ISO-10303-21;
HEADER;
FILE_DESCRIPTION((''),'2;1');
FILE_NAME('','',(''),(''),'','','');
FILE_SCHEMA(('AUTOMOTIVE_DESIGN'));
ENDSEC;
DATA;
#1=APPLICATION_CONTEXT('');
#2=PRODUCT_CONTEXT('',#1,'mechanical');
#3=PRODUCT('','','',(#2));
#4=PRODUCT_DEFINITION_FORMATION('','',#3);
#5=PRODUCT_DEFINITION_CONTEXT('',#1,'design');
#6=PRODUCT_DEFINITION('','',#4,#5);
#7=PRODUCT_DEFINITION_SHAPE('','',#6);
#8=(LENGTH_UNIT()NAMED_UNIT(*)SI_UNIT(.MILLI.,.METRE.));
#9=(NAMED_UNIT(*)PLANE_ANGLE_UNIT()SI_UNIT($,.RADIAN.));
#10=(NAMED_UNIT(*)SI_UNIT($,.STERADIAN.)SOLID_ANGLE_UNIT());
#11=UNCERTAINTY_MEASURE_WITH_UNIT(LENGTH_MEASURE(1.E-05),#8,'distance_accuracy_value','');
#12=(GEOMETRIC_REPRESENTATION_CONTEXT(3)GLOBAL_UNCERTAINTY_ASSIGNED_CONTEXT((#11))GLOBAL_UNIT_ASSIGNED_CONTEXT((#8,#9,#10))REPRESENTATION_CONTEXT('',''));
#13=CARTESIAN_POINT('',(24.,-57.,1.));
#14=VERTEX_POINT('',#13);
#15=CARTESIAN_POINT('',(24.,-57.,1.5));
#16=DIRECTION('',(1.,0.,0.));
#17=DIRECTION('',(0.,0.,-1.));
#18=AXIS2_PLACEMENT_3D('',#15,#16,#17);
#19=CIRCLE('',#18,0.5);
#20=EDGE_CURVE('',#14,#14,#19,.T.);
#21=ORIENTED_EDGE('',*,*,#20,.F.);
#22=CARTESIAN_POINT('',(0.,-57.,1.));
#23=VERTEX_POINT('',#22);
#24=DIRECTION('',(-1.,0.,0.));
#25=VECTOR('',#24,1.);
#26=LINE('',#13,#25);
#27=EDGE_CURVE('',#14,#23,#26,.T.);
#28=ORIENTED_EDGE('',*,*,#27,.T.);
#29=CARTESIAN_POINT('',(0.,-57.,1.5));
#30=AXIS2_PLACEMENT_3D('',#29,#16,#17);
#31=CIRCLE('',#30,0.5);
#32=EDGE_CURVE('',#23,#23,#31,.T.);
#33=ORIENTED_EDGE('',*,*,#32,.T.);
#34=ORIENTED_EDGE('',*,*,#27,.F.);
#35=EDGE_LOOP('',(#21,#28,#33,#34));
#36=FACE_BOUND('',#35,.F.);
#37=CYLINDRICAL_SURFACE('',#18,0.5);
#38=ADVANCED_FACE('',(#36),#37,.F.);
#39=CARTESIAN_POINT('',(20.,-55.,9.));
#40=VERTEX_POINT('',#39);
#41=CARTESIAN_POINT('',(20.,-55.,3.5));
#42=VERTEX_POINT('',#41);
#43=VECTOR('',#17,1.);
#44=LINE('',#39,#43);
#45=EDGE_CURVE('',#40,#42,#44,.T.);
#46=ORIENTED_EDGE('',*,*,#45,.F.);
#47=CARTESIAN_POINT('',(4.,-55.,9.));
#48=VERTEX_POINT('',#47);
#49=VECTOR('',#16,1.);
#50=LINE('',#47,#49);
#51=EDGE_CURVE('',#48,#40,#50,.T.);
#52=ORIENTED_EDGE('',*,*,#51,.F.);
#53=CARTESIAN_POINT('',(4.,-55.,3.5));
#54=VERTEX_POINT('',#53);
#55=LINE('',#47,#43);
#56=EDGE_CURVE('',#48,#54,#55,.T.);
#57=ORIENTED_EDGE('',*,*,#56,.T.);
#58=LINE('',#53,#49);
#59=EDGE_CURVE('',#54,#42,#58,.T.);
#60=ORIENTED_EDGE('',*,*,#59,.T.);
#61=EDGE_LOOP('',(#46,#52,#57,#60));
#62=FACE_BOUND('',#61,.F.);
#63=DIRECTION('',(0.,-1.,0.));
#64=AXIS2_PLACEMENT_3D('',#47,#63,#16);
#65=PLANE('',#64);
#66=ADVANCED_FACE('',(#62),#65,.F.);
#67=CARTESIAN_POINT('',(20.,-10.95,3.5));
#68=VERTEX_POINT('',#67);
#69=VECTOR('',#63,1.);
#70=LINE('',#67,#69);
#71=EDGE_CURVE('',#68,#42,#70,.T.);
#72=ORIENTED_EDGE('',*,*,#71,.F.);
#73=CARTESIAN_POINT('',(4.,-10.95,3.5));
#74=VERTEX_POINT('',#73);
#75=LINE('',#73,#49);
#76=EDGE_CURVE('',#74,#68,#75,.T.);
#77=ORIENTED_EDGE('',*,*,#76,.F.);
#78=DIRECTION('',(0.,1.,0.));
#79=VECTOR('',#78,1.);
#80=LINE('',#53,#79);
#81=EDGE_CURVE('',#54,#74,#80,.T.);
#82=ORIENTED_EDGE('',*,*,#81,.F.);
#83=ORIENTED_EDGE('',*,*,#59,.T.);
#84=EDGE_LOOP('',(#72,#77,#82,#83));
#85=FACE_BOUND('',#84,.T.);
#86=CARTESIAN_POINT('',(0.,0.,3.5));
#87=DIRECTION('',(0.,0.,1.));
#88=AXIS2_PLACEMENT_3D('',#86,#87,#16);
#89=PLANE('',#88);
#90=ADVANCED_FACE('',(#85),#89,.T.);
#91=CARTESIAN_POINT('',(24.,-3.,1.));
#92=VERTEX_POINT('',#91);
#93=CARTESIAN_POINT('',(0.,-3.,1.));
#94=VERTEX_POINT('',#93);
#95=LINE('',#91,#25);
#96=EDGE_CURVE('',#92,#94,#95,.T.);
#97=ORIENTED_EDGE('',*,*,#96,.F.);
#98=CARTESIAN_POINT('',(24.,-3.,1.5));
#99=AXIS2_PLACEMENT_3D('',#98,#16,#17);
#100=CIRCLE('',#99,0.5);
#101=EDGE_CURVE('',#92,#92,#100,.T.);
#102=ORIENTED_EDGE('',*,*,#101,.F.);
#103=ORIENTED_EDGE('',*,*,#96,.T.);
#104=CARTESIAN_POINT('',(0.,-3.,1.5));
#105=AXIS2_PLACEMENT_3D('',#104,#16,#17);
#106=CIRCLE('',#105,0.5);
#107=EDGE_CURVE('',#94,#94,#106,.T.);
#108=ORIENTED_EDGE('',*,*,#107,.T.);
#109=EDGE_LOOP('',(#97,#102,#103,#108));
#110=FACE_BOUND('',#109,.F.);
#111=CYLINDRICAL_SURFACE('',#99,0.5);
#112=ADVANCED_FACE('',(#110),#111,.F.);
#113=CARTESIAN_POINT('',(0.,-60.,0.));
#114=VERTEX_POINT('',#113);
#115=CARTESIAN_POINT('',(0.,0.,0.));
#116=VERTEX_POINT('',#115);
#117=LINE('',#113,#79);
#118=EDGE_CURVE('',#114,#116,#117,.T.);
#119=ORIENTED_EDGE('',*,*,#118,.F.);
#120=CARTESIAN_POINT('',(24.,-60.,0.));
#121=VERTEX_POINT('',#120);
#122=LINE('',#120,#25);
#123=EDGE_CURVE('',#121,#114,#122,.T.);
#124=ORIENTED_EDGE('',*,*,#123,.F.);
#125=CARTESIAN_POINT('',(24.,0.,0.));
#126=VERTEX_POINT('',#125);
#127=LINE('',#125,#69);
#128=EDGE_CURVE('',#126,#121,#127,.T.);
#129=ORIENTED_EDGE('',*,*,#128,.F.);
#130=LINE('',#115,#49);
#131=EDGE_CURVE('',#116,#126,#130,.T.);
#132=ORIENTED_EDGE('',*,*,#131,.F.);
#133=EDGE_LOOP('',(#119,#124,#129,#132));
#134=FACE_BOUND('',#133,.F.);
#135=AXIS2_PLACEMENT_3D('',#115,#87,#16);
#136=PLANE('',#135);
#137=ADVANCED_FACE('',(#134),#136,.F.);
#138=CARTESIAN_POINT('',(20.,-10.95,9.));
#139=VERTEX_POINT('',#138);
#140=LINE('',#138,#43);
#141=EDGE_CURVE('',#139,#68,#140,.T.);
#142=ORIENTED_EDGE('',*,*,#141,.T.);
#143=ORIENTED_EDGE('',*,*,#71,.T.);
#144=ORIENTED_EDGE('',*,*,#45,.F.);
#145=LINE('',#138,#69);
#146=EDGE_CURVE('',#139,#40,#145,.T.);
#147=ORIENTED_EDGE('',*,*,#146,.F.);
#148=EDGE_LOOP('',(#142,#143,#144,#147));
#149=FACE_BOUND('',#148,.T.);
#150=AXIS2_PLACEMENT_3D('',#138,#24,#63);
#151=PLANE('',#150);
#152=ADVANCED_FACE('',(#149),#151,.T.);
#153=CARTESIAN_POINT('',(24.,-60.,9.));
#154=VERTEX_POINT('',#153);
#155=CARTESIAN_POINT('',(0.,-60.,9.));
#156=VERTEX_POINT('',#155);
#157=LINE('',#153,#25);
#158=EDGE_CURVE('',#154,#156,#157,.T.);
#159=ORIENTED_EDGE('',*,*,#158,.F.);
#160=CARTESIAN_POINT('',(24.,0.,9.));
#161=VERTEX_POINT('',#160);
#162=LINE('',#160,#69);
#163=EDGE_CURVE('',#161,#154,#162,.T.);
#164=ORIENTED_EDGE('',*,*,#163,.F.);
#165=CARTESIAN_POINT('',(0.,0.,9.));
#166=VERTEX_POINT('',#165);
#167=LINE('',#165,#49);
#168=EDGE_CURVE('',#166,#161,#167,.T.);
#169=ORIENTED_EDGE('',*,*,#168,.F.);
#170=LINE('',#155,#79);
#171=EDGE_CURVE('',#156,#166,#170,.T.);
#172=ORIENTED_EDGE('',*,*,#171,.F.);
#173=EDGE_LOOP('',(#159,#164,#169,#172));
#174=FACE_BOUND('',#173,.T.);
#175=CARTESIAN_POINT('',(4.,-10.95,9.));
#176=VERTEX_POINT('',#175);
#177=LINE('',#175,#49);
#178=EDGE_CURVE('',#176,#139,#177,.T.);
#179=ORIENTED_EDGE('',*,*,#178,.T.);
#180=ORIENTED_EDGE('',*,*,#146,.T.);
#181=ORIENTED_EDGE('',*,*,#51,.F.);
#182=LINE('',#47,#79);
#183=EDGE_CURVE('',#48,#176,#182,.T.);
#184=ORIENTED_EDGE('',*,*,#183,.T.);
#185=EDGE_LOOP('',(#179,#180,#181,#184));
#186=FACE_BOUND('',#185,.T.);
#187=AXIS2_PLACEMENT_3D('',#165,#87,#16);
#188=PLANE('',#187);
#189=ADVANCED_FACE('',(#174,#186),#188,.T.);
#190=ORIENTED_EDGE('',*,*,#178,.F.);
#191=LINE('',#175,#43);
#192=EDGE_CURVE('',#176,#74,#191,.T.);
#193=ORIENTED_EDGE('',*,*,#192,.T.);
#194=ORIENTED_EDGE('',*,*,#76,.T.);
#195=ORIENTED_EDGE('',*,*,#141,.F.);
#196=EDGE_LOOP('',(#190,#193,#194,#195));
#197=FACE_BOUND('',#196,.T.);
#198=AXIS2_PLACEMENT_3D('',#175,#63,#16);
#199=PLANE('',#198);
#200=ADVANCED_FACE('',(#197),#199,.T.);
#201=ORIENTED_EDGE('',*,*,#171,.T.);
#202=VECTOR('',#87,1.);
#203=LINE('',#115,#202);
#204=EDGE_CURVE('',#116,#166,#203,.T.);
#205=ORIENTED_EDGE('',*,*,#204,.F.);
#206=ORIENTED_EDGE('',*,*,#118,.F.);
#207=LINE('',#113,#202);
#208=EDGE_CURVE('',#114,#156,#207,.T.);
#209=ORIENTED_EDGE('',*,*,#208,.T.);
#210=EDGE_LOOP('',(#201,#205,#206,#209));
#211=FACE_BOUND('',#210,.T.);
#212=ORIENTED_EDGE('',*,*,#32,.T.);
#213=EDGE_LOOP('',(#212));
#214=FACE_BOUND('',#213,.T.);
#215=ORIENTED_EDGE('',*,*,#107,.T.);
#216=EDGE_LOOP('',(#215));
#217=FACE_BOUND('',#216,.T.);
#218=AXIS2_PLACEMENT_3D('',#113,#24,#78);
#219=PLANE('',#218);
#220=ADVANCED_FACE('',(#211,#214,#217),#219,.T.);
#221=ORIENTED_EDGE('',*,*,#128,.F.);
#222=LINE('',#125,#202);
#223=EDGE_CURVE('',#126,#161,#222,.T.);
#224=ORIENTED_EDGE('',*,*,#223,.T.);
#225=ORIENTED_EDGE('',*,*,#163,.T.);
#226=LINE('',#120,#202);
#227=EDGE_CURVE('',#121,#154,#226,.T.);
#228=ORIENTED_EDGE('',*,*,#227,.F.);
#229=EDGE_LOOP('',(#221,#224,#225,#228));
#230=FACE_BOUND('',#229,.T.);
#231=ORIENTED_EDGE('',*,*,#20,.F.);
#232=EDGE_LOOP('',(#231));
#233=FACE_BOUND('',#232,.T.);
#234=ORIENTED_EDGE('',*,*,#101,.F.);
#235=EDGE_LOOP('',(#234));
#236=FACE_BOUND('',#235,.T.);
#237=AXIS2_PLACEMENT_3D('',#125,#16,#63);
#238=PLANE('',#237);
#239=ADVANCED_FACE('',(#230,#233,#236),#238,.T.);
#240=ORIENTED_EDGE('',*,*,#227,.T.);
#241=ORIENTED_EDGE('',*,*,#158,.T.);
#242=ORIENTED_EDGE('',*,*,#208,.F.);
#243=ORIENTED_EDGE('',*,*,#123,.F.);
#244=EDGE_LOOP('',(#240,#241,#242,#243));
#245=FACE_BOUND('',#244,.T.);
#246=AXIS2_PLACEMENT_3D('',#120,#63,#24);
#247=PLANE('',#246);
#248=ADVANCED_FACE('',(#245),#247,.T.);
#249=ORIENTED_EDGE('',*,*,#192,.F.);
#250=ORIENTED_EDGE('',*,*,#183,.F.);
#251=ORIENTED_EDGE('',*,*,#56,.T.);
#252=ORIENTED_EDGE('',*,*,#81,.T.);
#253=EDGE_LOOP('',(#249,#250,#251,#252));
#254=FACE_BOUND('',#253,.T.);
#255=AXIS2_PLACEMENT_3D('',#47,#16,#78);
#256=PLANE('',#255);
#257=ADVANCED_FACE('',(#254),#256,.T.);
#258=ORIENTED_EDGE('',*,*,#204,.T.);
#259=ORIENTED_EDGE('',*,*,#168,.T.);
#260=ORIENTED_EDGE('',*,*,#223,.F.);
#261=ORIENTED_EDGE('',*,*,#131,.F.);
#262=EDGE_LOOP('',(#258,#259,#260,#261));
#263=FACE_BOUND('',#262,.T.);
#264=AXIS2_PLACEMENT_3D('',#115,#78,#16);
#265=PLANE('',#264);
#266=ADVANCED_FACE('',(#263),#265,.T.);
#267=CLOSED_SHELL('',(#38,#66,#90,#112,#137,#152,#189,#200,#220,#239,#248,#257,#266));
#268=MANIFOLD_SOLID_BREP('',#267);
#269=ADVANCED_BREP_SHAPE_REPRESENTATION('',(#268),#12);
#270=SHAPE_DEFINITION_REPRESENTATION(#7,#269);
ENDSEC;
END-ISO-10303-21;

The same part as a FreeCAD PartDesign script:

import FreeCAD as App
import Part
import Sketcher
from FreeCAD import Vector
Q = App.Units.Quantity

doc = App.newDocument("Part")
body = doc.addObject("PartDesign::Body", "Body")

sketch1 = doc.addObject("Sketcher::SketchObject", "Sketch")
body.addObject(sketch1)
sketch1.AttachmentSupport = (doc.XY_Plane, [""])
sketch1.MapMode = "FlatFace"
sketch1.addGeometry([
    Part.LineSegment(Vector(24, 0, 0), Vector(0, 0, 0)),
    Part.LineSegment(Vector(0, 0, 0), Vector(0, -60, 0)),
    Part.LineSegment(Vector(0, -60, 0), Vector(24, -60, 0)),
    Part.LineSegment(Vector(24, -60, 0), Vector(24, 0, 0)),
], False)
sketch1.addConstraint([
    Sketcher.Constraint("Coincident", 0, 2, 1, 1),
    Sketcher.Constraint("Coincident", 1, 2, 2, 1),
    Sketcher.Constraint("Coincident", 2, 2, 3, 1),
    Sketcher.Constraint("Coincident", 3, 2, 0, 1),
    Sketcher.Constraint("Horizontal", 0),
    Sketcher.Constraint("Vertical", 1),
    Sketcher.Constraint("Horizontal", 2),
    Sketcher.Constraint("Vertical", 3),
    Sketcher.Constraint("Coincident", 0, 2, -1, 1),
    Sketcher.Constraint("DistanceX", 0, 2, 0, 1, Q("24 mm")),
    Sketcher.Constraint("DistanceY", 1, 2, 1, 1, Q("60 mm")),
])
pad1 = doc.addObject("PartDesign::Pad", "Pad")
body.addObject(pad1)
pad1.Profile = sketch1
pad1.Length = 9

sketch2 = doc.addObject("Sketcher::SketchObject", "Sketch001")
body.addObject(sketch2)
sketch2.AttachmentSupport = (doc.XY_Plane, [""])
sketch2.MapMode = "FlatFace"
sketch2.AttachmentOffset = App.Placement(Vector(0, 0, 9), App.Rotation())
sketch2.addGeometry([
    Part.LineSegment(Vector(4, -11, 0), Vector(4, -55, 0)),
    Part.LineSegment(Vector(4, -55, 0), Vector(20, -55, 0)),
    Part.LineSegment(Vector(20, -55, 0), Vector(20, -11, 0)),
    Part.LineSegment(Vector(20, -11, 0), Vector(4, -11, 0)),
], False)
sketch2.addConstraint([
    Sketcher.Constraint("Coincident", 0, 2, 1, 1),
    Sketcher.Constraint("Coincident", 1, 2, 2, 1),
    Sketcher.Constraint("Coincident", 2, 2, 3, 1),
    Sketcher.Constraint("Coincident", 3, 2, 0, 1),
    Sketcher.Constraint("Vertical", 0),
    Sketcher.Constraint("Horizontal", 1),
    Sketcher.Constraint("Vertical", 2),
    Sketcher.Constraint("Horizontal", 3),
    Sketcher.Constraint("DistanceX", -1, 1, 0, 2, Q("4 mm")),
    Sketcher.Constraint("DistanceX", 1, 1, 1, 2, Q("16 mm")),
    Sketcher.Constraint("DistanceY", 2, 2, -1, 1, Q("10.95 mm")),
    Sketcher.Constraint("DistanceY", 0, 2, -1, 1, Q("55 mm")),
])
pocket1 = doc.addObject("PartDesign::Pocket", "Pocket")
body.addObject(pocket1)
pocket1.Profile = sketch2
pocket1.Length = 5.5

sketch3 = doc.addObject("Sketcher::SketchObject", "Sketch002")
body.addObject(sketch3)
sketch3.AttachmentSupport = (doc.YZ_Plane, [""])
sketch3.MapMode = "FlatFace"
sketch3.AttachmentOffset = App.Placement(Vector(0, 0, 24), App.Rotation())
sketch3.addGeometry([
    Part.Circle(Vector(-57, 1.5, 0), Vector(0, 0, 1), 0.5),
    Part.Circle(Vector(-3, 1.5, 0), Vector(0, 0, 1), 0.5),
], False)
sketch3.addConstraint([
    Sketcher.Constraint("Equal", 0, 1),
    Sketcher.Constraint("Horizontal", 0, 3, 1, 3),
    Sketcher.Constraint("Diameter", 0, Q("1 mm")),
    Sketcher.Constraint("DistanceX", 1, 3, -1, 1, Q("3 mm")),
    Sketcher.Constraint("DistanceX", 0, 3, -1, 1, Q("57 mm")),
    Sketcher.Constraint("DistanceY", -1, 1, 0, 3, Q("1.5 mm")),
])
pocket2 = doc.addObject("PartDesign::Pocket", "Pocket001")
body.addObject(pocket2)
pocket2.Profile = sketch3
pocket2.Length = 24

doc.recompute()
